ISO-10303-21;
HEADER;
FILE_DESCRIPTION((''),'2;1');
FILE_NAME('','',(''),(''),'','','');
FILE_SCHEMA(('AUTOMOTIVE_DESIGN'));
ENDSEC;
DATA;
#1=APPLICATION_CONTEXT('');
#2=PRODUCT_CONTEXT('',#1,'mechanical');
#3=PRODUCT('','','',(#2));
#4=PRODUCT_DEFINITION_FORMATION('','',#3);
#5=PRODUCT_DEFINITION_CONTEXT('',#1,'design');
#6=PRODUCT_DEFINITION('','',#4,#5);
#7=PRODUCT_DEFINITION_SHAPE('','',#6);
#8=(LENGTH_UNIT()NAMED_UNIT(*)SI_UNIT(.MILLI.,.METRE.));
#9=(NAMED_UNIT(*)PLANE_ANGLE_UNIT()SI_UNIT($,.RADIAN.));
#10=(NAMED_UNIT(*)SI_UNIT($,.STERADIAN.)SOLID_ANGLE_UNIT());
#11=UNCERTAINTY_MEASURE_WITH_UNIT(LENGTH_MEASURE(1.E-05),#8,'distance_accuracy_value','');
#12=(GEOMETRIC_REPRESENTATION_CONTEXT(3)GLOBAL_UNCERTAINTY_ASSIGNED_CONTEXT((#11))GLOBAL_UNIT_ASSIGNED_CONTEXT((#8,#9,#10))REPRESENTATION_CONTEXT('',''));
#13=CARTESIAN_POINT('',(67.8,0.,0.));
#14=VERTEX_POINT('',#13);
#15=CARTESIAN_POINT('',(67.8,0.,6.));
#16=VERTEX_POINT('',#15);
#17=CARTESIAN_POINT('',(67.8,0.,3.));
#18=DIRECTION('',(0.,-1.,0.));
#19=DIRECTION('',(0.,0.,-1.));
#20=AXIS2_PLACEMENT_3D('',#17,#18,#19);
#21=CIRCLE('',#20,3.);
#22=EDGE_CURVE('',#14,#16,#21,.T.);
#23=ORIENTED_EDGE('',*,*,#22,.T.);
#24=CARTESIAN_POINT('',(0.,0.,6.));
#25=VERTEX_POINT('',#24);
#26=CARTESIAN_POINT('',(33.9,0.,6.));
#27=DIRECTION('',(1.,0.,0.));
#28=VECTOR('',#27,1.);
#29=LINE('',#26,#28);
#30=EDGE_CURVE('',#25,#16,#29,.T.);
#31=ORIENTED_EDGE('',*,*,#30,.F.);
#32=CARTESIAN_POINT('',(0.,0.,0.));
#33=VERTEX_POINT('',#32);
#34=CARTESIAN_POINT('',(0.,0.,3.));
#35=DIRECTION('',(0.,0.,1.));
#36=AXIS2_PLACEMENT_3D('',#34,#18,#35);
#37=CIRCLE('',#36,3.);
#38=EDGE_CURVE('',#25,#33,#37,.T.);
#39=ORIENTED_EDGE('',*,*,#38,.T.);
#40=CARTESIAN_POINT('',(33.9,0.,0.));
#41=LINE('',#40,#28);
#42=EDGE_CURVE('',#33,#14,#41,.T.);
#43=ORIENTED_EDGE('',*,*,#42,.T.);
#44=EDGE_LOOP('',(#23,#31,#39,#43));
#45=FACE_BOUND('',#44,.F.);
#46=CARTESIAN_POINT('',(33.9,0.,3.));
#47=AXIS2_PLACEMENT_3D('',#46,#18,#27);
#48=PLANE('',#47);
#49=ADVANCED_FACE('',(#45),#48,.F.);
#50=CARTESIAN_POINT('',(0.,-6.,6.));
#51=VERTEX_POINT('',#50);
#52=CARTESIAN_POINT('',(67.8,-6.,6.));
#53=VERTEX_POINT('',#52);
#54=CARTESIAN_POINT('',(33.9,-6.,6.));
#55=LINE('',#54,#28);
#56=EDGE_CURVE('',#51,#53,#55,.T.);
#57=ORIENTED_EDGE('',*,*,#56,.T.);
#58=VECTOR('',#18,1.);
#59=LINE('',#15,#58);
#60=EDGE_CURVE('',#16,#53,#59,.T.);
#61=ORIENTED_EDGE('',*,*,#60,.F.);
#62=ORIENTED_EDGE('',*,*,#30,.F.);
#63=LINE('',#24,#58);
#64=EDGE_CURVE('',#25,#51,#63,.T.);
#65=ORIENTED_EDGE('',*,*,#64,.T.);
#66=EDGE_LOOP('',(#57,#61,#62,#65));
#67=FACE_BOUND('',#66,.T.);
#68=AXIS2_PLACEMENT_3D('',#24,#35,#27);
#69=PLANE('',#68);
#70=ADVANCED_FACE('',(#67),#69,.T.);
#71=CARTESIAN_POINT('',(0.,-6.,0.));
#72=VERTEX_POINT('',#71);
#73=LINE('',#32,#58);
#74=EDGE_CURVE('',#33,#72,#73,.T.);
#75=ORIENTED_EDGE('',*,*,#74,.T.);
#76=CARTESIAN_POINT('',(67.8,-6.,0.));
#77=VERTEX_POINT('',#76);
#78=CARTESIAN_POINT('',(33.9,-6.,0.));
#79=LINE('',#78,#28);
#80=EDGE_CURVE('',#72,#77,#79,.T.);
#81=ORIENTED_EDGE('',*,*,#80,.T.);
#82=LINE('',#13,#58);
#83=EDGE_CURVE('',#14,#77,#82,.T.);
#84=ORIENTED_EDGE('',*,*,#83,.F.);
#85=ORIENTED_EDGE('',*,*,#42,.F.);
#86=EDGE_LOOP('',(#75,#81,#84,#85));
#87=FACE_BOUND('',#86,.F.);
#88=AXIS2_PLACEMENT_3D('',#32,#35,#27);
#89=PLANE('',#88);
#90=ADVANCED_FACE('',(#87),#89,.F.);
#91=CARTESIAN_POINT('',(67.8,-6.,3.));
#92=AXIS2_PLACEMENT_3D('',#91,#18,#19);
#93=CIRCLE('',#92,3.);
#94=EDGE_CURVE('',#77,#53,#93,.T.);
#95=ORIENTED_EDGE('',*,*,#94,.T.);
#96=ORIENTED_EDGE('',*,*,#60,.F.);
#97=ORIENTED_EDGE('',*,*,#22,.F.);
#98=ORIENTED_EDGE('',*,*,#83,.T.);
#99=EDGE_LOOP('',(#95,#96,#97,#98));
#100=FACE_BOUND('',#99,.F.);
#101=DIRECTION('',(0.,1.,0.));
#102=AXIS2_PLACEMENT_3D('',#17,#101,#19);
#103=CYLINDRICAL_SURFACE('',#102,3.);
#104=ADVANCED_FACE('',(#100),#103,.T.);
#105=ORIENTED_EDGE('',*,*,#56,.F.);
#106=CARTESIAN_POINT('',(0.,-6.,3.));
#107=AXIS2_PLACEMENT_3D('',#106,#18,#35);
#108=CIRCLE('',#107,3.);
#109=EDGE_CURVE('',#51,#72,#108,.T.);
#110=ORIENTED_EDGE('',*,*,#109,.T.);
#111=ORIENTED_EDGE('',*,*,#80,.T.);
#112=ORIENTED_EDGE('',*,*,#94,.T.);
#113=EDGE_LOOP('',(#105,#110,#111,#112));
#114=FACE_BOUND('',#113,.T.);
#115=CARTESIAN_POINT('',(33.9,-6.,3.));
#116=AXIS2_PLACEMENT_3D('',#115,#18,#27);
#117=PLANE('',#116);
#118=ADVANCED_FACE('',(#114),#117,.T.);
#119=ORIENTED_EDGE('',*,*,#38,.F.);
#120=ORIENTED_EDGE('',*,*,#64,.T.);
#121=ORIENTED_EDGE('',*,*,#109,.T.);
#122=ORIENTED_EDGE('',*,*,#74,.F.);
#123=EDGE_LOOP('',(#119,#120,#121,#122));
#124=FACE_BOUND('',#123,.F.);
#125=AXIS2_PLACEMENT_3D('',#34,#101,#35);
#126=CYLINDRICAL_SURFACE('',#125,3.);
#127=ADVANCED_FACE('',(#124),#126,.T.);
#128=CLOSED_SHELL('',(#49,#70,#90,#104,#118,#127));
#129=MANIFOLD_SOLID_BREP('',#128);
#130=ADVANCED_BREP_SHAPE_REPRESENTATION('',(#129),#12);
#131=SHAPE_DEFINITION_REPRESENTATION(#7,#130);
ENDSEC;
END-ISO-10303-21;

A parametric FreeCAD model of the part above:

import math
import FreeCAD as App
import Part
import Sketcher
from FreeCAD import Vector
Q = App.Units.Quantity

doc = App.newDocument("Part")
params = doc.addObject("Spreadsheet::Sheet", "Params")
for row, (alias, value) in enumerate([
    ("sketch1_radius", "3 mm"),
    ("sketch1_width", "67.8 mm"),
    ("pad1_length", "6 mm"),
], start=1):
    params.set(f"A{row}", alias)
    params.set(f"B{row}", "=" + value)
    params.setAlias(f"B{row}", alias)

body = doc.addObject("PartDesign::Body", "Body")

# Sketch on XZ plane
sketch1 = doc.addObject("Sketcher::SketchObject", "Sketch")
body.addObject(sketch1)
sketch1.AttachmentSupport = (doc.XZ_Plane, [""])
sketch1.MapMode = "FlatFace"
sketch1.addGeometry(Part.LineSegment(Vector(0, 0, 0), Vector(67.8, 0, 0)), False)
sketch1.addGeometry(Part.ArcOfCircle(Part.Circle(Vector(67.8, 3, 0), Vector(0, 0, 1), 3), math.radians(-90), math.radians(90)), False)
sketch1.addGeometry(Part.LineSegment(Vector(67.8, 6, 0), Vector(0, 6, 0)), False)
sketch1.addGeometry(Part.ArcOfCircle(Part.Circle(Vector(0, 3, 0), Vector(0, 0, 1), 3), math.radians(90), math.radians(270)), False)
sketch1.addConstraint(Sketcher.Constraint("Tangent", 0, 2, 1, 1))
sketch1.addConstraint(Sketcher.Constraint("Tangent", 1, 2, 2, 1))
sketch1.addConstraint(Sketcher.Constraint("Tangent", 2, 2, 3, 1))
sketch1.addConstraint(Sketcher.Constraint("Tangent", 3, 2, 0, 1))
sketch1.addConstraint(Sketcher.Constraint("Horizontal", 0))
sketch1.addConstraint(Sketcher.Constraint("Horizontal", 2))
sketch1.addConstraint(Sketcher.Constraint("Coincident", 3, 2, -1, 1))
sketch1.addConstraint(Sketcher.Constraint("Radius", 1, Q("3 mm")))
sketch1.addConstraint(Sketcher.Constraint("DistanceX", 0, 1, 0, 2, Q("67.8 mm")))
sketch1.setExpression("Constraints[7]", "Params.sketch1_radius")
sketch1.setExpression("Constraints[8]", "Params.sketch1_width")
pad1 = doc.addObject("PartDesign::Pad", "Pad")
body.addObject(pad1)
pad1.Profile = sketch1
pad1.setExpression("Length", "Params.pad1_length")

doc.recompute()
